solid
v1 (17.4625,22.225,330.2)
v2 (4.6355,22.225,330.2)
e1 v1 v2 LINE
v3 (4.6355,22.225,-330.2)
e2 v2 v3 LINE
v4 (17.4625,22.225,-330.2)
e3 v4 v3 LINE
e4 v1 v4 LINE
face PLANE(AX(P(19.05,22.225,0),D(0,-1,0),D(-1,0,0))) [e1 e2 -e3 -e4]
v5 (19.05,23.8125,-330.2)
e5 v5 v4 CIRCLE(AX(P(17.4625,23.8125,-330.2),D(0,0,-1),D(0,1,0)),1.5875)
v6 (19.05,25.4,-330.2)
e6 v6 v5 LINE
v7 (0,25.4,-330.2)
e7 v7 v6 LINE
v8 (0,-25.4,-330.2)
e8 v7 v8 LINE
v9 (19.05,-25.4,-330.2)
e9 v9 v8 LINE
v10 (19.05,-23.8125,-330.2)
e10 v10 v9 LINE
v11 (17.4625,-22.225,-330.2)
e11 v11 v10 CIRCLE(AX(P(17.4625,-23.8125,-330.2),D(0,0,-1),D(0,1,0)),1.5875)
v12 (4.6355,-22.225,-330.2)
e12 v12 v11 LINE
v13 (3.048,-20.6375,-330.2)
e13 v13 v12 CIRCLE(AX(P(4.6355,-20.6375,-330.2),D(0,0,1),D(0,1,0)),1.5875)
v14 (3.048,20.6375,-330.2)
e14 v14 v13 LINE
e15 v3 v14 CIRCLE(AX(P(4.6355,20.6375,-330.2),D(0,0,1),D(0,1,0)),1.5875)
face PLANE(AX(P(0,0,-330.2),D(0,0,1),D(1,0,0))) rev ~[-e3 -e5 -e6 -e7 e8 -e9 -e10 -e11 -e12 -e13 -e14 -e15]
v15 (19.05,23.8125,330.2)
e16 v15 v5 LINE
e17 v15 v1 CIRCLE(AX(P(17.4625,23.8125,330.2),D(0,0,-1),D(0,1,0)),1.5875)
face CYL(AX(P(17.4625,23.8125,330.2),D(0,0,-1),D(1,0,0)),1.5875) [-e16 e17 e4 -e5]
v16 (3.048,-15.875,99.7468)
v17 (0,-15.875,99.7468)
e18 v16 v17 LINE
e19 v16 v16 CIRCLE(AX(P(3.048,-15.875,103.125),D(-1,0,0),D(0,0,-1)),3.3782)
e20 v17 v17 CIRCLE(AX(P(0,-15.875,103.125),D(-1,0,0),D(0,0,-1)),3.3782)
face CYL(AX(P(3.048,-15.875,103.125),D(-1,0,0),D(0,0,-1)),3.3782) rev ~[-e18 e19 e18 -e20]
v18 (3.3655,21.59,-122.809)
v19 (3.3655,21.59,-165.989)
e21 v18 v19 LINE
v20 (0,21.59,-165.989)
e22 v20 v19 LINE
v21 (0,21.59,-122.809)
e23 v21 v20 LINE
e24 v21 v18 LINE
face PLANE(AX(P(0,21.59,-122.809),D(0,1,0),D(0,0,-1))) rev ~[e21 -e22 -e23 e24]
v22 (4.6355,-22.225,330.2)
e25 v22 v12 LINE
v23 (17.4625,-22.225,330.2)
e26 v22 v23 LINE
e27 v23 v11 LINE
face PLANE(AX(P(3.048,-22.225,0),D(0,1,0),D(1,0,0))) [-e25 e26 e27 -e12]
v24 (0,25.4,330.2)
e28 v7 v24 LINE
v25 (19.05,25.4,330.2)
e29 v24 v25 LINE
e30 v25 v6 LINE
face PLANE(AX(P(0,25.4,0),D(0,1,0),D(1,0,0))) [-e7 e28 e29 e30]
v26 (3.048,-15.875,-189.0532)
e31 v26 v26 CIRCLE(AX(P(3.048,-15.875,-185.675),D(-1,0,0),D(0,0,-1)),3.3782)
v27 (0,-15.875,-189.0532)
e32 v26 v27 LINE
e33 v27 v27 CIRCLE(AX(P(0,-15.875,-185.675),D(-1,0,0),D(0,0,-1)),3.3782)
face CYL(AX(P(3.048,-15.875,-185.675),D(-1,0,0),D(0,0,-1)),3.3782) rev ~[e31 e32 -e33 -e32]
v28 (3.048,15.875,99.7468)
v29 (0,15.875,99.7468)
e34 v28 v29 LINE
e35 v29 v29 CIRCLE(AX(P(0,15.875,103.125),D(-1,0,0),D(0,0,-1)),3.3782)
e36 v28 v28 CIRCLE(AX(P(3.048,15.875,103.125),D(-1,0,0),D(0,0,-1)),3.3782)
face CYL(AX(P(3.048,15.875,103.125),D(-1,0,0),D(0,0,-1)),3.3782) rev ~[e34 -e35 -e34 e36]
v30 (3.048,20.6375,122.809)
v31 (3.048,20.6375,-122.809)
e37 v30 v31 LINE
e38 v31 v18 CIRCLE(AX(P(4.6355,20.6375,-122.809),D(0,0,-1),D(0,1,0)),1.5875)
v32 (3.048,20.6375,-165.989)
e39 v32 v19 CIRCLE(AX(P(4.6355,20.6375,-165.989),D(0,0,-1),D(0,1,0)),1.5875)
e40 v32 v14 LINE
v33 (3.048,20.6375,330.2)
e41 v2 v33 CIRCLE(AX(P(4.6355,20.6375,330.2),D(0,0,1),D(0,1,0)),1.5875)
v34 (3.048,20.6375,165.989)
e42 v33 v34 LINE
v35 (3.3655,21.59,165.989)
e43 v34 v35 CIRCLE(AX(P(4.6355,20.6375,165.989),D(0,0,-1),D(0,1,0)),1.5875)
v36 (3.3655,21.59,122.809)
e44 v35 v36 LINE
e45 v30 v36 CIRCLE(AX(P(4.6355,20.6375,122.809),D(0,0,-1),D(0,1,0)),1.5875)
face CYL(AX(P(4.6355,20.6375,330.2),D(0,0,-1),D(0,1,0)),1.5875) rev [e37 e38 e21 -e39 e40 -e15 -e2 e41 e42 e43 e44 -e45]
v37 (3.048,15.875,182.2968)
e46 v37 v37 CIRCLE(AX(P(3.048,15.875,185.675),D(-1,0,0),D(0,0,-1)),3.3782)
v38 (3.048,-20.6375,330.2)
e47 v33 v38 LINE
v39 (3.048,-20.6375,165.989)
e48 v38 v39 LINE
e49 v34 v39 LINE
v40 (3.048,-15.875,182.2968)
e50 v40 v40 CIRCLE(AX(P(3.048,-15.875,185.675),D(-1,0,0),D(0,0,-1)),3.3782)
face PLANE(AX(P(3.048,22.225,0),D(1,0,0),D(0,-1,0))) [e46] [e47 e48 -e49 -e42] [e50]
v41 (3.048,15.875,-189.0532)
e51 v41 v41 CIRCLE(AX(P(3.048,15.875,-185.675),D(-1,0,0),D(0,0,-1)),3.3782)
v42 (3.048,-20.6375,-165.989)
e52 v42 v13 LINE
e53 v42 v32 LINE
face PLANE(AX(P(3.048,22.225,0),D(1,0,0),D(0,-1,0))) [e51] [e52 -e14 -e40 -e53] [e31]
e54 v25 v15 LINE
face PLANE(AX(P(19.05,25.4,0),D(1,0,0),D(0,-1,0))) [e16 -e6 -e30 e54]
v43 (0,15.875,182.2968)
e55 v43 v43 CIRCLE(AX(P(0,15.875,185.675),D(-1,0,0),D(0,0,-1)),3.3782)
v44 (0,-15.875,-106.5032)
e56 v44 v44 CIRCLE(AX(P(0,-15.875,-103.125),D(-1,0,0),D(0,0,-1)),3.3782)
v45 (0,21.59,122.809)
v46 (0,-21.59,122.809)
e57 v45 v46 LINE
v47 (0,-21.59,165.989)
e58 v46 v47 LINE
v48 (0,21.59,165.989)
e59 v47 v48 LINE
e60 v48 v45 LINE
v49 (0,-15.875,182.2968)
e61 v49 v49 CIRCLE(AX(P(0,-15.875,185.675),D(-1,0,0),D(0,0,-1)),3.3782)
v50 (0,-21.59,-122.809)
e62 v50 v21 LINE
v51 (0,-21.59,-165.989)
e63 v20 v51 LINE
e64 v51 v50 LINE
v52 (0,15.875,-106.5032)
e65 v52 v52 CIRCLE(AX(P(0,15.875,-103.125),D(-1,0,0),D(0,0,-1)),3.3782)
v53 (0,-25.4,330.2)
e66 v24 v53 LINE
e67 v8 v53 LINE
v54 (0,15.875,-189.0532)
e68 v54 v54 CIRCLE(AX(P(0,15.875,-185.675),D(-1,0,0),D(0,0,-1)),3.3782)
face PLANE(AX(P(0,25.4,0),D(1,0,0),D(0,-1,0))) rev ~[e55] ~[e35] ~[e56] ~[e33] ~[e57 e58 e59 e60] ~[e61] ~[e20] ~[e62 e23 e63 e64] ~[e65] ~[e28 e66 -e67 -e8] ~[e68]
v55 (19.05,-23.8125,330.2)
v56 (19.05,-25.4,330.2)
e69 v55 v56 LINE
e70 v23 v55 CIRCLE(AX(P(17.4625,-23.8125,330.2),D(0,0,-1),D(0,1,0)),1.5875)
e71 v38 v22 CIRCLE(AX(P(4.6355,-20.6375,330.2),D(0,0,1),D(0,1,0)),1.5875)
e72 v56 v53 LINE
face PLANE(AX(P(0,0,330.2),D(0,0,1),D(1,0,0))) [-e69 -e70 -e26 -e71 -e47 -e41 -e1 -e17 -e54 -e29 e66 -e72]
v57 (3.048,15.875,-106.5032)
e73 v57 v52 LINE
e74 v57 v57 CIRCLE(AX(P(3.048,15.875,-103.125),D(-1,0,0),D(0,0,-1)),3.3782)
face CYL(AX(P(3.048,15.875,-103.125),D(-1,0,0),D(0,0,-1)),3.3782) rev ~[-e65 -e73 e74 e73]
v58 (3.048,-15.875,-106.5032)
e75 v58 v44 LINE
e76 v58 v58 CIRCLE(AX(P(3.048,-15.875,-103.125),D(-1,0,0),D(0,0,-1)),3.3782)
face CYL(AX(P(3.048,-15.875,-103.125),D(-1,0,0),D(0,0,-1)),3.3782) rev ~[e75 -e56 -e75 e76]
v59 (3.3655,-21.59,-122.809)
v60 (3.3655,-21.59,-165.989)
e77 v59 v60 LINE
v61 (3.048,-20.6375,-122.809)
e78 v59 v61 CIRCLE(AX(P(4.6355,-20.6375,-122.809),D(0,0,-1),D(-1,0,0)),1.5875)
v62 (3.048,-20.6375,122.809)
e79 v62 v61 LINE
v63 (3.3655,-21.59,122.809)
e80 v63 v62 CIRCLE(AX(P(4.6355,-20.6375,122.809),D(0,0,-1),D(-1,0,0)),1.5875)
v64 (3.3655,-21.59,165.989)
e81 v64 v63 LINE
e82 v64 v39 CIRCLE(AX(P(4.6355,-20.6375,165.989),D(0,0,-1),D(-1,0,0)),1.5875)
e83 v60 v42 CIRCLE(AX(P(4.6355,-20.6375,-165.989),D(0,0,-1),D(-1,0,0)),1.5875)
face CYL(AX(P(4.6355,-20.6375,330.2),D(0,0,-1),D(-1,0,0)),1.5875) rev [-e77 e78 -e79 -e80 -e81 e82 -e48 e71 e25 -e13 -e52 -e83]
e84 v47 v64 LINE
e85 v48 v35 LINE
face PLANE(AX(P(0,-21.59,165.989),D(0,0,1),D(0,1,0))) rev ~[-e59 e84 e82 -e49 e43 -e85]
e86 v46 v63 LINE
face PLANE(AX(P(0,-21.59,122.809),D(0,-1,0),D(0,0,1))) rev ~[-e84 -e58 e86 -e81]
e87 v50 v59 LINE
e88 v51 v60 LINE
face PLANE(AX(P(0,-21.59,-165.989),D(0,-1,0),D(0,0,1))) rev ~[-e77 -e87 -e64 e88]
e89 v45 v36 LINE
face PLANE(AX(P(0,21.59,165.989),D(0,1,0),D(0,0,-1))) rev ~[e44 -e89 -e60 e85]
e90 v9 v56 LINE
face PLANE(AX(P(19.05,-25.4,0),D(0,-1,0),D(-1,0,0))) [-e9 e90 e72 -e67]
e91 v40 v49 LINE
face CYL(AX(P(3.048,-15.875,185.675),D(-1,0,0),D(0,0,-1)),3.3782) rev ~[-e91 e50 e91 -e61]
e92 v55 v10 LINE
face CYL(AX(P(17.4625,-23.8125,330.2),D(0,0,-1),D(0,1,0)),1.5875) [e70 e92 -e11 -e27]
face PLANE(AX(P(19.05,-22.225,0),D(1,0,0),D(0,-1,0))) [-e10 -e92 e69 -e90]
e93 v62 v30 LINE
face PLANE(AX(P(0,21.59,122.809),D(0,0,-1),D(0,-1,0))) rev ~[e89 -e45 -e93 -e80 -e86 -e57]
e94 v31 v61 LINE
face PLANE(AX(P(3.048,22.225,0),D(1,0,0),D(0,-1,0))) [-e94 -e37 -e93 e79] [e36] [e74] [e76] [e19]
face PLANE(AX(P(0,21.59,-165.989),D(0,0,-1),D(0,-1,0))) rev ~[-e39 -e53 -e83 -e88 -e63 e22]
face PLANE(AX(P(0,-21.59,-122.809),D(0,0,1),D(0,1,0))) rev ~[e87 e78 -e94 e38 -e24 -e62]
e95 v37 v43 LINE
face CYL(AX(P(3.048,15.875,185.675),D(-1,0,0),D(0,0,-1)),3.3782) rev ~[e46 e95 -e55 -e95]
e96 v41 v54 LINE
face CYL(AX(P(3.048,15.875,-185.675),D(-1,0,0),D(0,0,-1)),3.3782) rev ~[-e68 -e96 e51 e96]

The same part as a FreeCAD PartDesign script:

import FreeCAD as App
import Part
import Sketcher
from FreeCAD import Vector
Q = App.Units.Quantity


def edges_at(feature, points):
    """Names of the edges that pass closest to the given points."""
    edges = feature.Shape.Edges
    near = lambda p: min(range(len(edges)), key=lambda i: edges[i].distToShape(Part.Vertex(*p))[0])
    return sorted({f"Edge{near(p) + 1}" for p in points})


def add_polygon(sketch, points):
    """Adds a closed chain of lines whose ends are joined by coincident constraints."""
    first, n = sketch.GeometryCount, len(points)
    for a, b in zip(points, points[1:] + points[:1]):
        sketch.addGeometry(Part.LineSegment(App.Vector(*a, 0), App.Vector(*b, 0)), False)
    for i in range(n):
        sketch.addConstraint(Sketcher.Constraint("Coincident", first + i, 2, first + (i + 1) % n, 1))

doc = App.newDocument("Part")
body = doc.addObject("PartDesign::Body", "Body")

sketch1 = body.newObject("Sketcher::SketchObject", "Sketch")
sketch1.AttachmentSupport = (doc.getObject("XY_Plane"), [""])
sketch1.MapMode = "FlatFace"
add_polygon(sketch1, [(19.05, 25.4), (0, 25.4), (0, -25.4), (19.05, -25.4), (19.05, -22.225), (3.048, -22.225), (3.048, 22.225), (19.05, 22.225)])
sketch1.addConstraint(Sketcher.Constraint("Horizontal", 0))
sketch1.addConstraint(Sketcher.Constraint("Vertical", 1))
sketch1.addConstraint(Sketcher.Constraint("Horizontal", 2))
sketch1.addConstraint(Sketcher.Constraint("Vertical", 3))
sketch1.addConstraint(Sketcher.Constraint("Horizontal", 4))
sketch1.addConstraint(Sketcher.Constraint("Vertical", 5))
sketch1.addConstraint(Sketcher.Constraint("Horizontal", 6))
sketch1.addConstraint(Sketcher.Constraint("Vertical", 7))
sketch1.addConstraint(Sketcher.Constraint("Symmetric", 0, 2, 1, 2, -1, 1))
sketch1.addConstraint(Sketcher.Constraint("Symmetric", 3, 2, 6, 2, -1))
sketch1.addConstraint(Sketcher.Constraint("DistanceY", 1, 2, 1, 1, Q("2 in")))
sketch1.addConstraint(Sketcher.Constraint("DistanceX", 0, 2, 0, 1, Q("0.75 in")))
sketch1.addConstraint(Sketcher.Constraint("DistanceX", 4, 2, 4, 1, Q("0.63 in")))
sketch1.addConstraint(Sketcher.Constraint("DistanceY", 3, 1, 3, 2, Q("0.125 in")))
pad1 = body.newObject("PartDesign::Pad", "Pad")
pad1.Profile = sketch1
pad1.Length = Q("26 in")
pad1.Midplane = True
doc.recompute()

fillet = body.newObject("PartDesign::Fillet", "Fillet")
fillet.Base = (pad1, edges_at(pad1, [
    (19.05, 22.225, 0),
    (19.05, -22.225, 0),
    (3.048, -22.225, 0),
    (3.048, 22.225, 0),
]))
fillet.Radius = Q("0.0625 in")

sketch2 = body.newObject("Sketcher::SketchObject", "Sketch001")
sketch2.AttachmentSupport = (doc.getObject("YZ_Plane"), [""])
sketch2.MapMode = "FlatFace"
add_polygon(sketch2, [(21.59, -165.989), (-21.59, -165.989), (-21.59, -122.809), (21.59, -122.809)])
add_polygon(sketch2, [(21.59, 122.809), (-21.59, 122.809), (-21.59, 165.989), (21.59, 165.989)])
sketch2.addConstraint(Sketcher.Constraint("Horizontal", 0))
sketch2.addConstraint(Sketcher.Constraint("Vertical", 1))
sketch2.addConstraint(Sketcher.Constraint("Horizontal", 2))
sketch2.addConstraint(Sketcher.Constraint("Vertical", 3))
sketch2.addConstraint(Sketcher.Constraint("Horizontal", 4))
sketch2.addConstraint(Sketcher.Constraint("Vertical", 5))
sketch2.addConstraint(Sketcher.Constraint("Horizontal", 6))
sketch2.addConstraint(Sketcher.Constraint("Vertical", 7))
sketch2.addConstraint(Sketcher.Constraint("Symmetric", 2, 2, 4, 2, -1, 1))
sketch2.addConstraint(Sketcher.Constraint("Symmetric", 0, 2, 6, 2, -1, 1))
sketch2.addConstraint(Sketcher.Constraint("Vertical", 1, 2, 4, 2))
sketch2.addConstraint(Sketcher.Constraint("Equal", 6, 1))
sketch2.addConstraint(Sketcher.Constraint("DistanceX", 0, 2, 0, 1, Q("1.7 in")))
sketch2.addConstraint(Sketcher.Constraint("DistanceY", 0, 2, 4, 2, Q("11.37 in")))
pocket1 = body.newObject("PartDesign::Pocket", "Pocket")
pocket1.Profile = sketch2
pocket1.Type = "ThroughAll"
pocket1.Reversed = True

sketch3 = body.newObject("Sketcher::SketchObject", "Sketch002")
sketch3.AttachmentSupport = (doc.getObject("YZ_Plane"), [""])
sketch3.MapMode = "FlatFace"
sketch3.AttachmentOffset = App.Placement(Vector(0, 0, 0.12 * 25.4), App.Rotation())
sketch3.addGeometry(Part.Circle(Vector(-15.875, -185.675, 0), Vector(0, 0, 1), 3.3782), False)
sketch3.addGeometry(Part.Circle(Vector(15.875, -185.675, 0), Vector(0, 0, 1), 3.3782), False)
sketch3.addGeometry(Part.Circle(Vector(-15.875, -103.125, 0), Vector(0, 0, 1), 3.3782), False)
sketch3.addGeometry(Part.Circle(Vector(15.875, -103.125, 0), Vector(0, 0, 1), 3.3782), False)
sketch3.addGeometry(Part.Circle(Vector(-15.875, 103.125, 0), Vector(0, 0, 1), 3.3782), False)
sketch3.addGeometry(Part.Circle(Vector(15.875, 103.125, 0), Vector(0, 0, 1), 3.3782), False)
sketch3.addGeometry(Part.Circle(Vector(-15.875, 185.675, 0), Vector(0, 0, 1), 3.3782), False)
sketch3.addGeometry(Part.Circle(Vector(15.875, 185.675, 0), Vector(0, 0, 1), 3.3782), False)
sketch3.addConstraint(Sketcher.Constraint("Equal", 0, 1))
sketch3.addConstraint(Sketcher.Constraint("Equal", 1, 2))
sketch3.addConstraint(Sketcher.Constraint("Equal", 2, 3))
sketch3.addConstraint(Sketcher.Constraint("Equal", 3, 4))
sketch3.addConstraint(Sketcher.Constraint("Equal", 4, 5))
sketch3.addConstraint(Sketcher.Constraint("Equal", 5, 6))
sketch3.addConstraint(Sketcher.Constraint("Equal", 6, 7))
sketch3.addConstraint(Sketcher.Constraint("Symmetric", 3, 3, 4, 3, -1, 1))
sketch3.addConstraint(Sketcher.Constraint("Symmetric", 2, 3, 5, 3, -1, 1))
sketch3.addConstraint(Sketcher.Constraint("Symmetric", 1, 3, 6, 3, -1, 1))
sketch3.addConstraint(Sketcher.Constraint("Symmetric", 0, 3, 7, 3, -1, 1))
sketch3.addConstraint(Sketcher.Constraint("Symmetric", 0, 3, 1, 3, -2))
sketch3.addConstraint(Sketcher.Constraint("Symmetric", 2, 3, 3, 3, -2))
sketch3.addConstraint(Sketcher.Constraint("Vertical", 0, 3, 2, 3))
sketch3.addConstraint(Sketcher.Constraint("Diameter", 0, Q("0.266 in")))
sketch3.addConstraint(Sketcher.Constraint("DistanceX", 0, 3, 1, 3, Q("1.25 in")))
sketch3.addConstraint(Sketcher.Constraint("DistanceY", 0, 3, 2, 3, Q("3.25 in")))
sketch3.addConstraint(Sketcher.Constraint("DistanceY", 0, 3, -1, 1, Q("185.675 mm")))
doc.recompute()
hole = body.newObject("PartDesign::Hole", "Hole")
hole.Profile = sketch3
hole.ThreadType = "None"
hole.Diameter = Q("0.266 in")
hole.DepthType = "ThroughAll"

doc.recompute()
